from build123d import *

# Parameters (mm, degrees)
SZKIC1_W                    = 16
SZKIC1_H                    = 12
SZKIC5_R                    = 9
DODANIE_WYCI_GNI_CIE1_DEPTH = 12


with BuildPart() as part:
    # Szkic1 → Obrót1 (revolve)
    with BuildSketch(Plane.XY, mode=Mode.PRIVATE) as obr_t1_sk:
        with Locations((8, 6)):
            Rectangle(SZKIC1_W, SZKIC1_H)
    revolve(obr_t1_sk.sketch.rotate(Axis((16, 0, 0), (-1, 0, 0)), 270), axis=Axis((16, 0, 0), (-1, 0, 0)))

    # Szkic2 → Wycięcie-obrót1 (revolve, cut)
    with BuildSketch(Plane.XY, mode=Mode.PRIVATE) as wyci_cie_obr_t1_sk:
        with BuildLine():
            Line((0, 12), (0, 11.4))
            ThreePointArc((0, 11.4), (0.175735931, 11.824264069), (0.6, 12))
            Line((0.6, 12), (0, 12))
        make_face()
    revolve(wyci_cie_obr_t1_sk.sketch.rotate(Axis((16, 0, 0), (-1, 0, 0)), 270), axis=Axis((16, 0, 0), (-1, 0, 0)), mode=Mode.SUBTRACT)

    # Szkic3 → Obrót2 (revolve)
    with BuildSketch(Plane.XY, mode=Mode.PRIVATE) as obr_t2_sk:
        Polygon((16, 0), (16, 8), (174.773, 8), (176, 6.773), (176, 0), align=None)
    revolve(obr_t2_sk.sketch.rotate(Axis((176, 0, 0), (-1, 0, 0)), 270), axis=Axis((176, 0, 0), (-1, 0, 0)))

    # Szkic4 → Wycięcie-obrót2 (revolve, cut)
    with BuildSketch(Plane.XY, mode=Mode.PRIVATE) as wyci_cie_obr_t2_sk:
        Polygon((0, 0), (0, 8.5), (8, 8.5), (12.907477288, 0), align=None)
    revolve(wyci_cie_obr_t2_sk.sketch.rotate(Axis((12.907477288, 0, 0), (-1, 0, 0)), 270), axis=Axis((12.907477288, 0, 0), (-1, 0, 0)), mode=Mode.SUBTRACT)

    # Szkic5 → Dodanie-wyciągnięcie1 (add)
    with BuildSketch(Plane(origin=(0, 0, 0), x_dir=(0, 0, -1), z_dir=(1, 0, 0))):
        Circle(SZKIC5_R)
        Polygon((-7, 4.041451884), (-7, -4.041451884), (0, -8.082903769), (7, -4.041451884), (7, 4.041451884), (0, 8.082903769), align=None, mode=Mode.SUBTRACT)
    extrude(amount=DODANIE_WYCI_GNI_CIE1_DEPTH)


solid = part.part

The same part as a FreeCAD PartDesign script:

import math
import FreeCAD as App
import Part
import Sketcher
Q = App.Units.Quantity


def add_polygon(sketch, points):
    """Adds a closed chain of lines whose ends are joined by coincident constraints."""
    first, n = sketch.GeometryCount, len(points)
    for a, b in zip(points, points[1:] + points[:1]):
        sketch.addGeometry(Part.LineSegment(App.Vector(*a, 0), App.Vector(*b, 0)), False)
    for i in range(n):
        sketch.addConstraint(Sketcher.Constraint("Coincident", first + i, 2, first + (i + 1) % n, 1))

doc = App.newDocument("Part")
body = doc.addObject("PartDesign::Body", "Body")

# Sketch on XY plane
sketch1 = body.newObject("Sketcher::SketchObject", "Sketch")
sketch1.AttachmentSupport = (doc.getObject("XY_Plane"), [""])
sketch1.MapMode = "FlatFace"
add_polygon(sketch1, [(0, 12), (0, 0), (16, 0), (16, 12)])  # lines 0-3
sketch1.addConstraint(Sketcher.Constraint("Vertical", 0))
sketch1.addConstraint(Sketcher.Constraint("Horizontal", 1))
sketch1.addConstraint(Sketcher.Constraint("Vertical", 2))
sketch1.addConstraint(Sketcher.Constraint("Horizontal", 3))
sketch1.addConstraint(Sketcher.Constraint("Coincident", 0, 2, -1, 1))
sketch1.addConstraint(Sketcher.Constraint("DistanceX", 1, 1, 1, 2, Q("16 mm")))
sketch1.addConstraint(Sketcher.Constraint("DistanceY", 0, 2, 0, 1, Q("12 mm")))
revolution = body.newObject("PartDesign::Revolution", "Revolution")
revolution.Profile = sketch1
revolution.ReferenceAxis = (sketch1, ["H_Axis"])
revolution.Angle = 360

# Sketch on XY plane
sketch2 = body.newObject("Sketcher::SketchObject", "Sketch001")
sketch2.AttachmentSupport = (doc.getObject("XY_Plane"), [""])
sketch2.MapMode = "FlatFace"
sketch2.addGeometry(Part.LineSegment(App.Vector(0, 12, 0), App.Vector(0, 11.4, 0)), False)
sketch2.addGeometry(Part.ArcOfCircle(Part.Circle(App.Vector(0.6, 11.4, 0), App.Vector(0, 0, 1), 0.6), math.radians(90), math.radians(180)), False)
sketch2.addGeometry(Part.LineSegment(App.Vector(0.6, 12, 0), App.Vector(0, 12, 0)), False)
sketch2.addConstraint(Sketcher.Constraint("Tangent", 0, 2, 1, 2))
sketch2.addConstraint(Sketcher.Constraint("Tangent", 1, 1, 2, 1))
sketch2.addConstraint(Sketcher.Constraint("Coincident", 2, 2, 0, 1))
sketch2.addConstraint(Sketcher.Constraint("Vertical", 0))
sketch2.addConstraint(Sketcher.Constraint("Horizontal", 2))
sketch2.addConstraint(Sketcher.Constraint("PointOnObject", 0, 2, -2))
sketch2.addConstraint(Sketcher.Constraint("Radius", 1, Q("0.6 mm")))
sketch2.addConstraint(Sketcher.Constraint("DistanceY", -1, 1, 1, 1, Q("12 mm")))
groove = body.newObject("PartDesign::Groove", "Groove")
groove.Profile = sketch2
groove.ReferenceAxis = (sketch2, ["H_Axis"])
groove.Angle = 360

# Sketch on XY plane
sketch3 = body.newObject("Sketcher::SketchObject", "Sketch002")
sketch3.AttachmentSupport = (doc.getObject("XY_Plane"), [""])
sketch3.MapMode = "FlatFace"
add_polygon(sketch3, [(16, 8), (16, 0), (176, 0), (176, 6.773), (174.773, 8)])  # lines 0-4
sketch3.addConstraint(Sketcher.Constraint("Vertical", 0))
sketch3.addConstraint(Sketcher.Constraint("Horizontal", 1))
sketch3.addConstraint(Sketcher.Constraint("Vertical", 2))
sketch3.addConstraint(Sketcher.Constraint("Horizontal", 4))
sketch3.addConstraint(Sketcher.Constraint("PointOnObject", 0, 2, -1))
sketch3.addConstraint(Sketcher.Constraint("DistanceX", 1, 1, 1, 2, Q("160 mm")))
sketch3.addConstraint(Sketcher.Constraint("DistanceY", 0, 2, 0, 1, Q("8 mm")))
sketch3.addConstraint(Sketcher.Constraint("Angle", 3, Q("135 deg")))
sketch3.addConstraint(Sketcher.Constraint("DistanceX", -1, 1, 0, 2, Q("16 mm")))
sketch3.addConstraint(Sketcher.Constraint("DistanceX", 4, 2, 4, 1, Q("158.773 mm")))
revolution2 = body.newObject("PartDesign::Revolution", "Revolution001")
revolution2.Profile = sketch3
revolution2.ReferenceAxis = (sketch3, ["H_Axis"])
revolution2.Angle = 360

# Sketch on XY plane
sketch4 = body.newObject("Sketcher::SketchObject", "Sketch003")
sketch4.AttachmentSupport = (doc.getObject("XY_Plane"), [""])
sketch4.MapMode = "FlatFace"
add_polygon(sketch4, [(0, 8.5), (0, 0), (12.907477, 0), (8, 8.5)])  # lines 0-3
sketch4.addConstraint(Sketcher.Constraint("Vertical", 0))
sketch4.addConstraint(Sketcher.Constraint("Horizontal", 1))
sketch4.addConstraint(Sketcher.Constraint("Horizontal", 3))
sketch4.addConstraint(Sketcher.Constraint("Coincident", 0, 2, -1, 1))
sketch4.addConstraint(Sketcher.Constraint("DistanceX", 3, 2, 3, 1, Q("8 mm")))
sketch4.addConstraint(Sketcher.Constraint("Angle", 2, Q("120 deg")))
sketch4.addConstraint(Sketcher.Constraint("DistanceY", 0, 2, 0, 1, Q("8.5 mm")))
groove2 = body.newObject("PartDesign::Groove", "Groove001")
groove2.Profile = sketch4
groove2.ReferenceAxis = (sketch4, ["H_Axis"])
groove2.Angle = 360

# Sketch on YZ plane
sketch5 = body.newObject("Sketcher::SketchObject", "Sketch004")
sketch5.AttachmentSupport = (doc.getObject("YZ_Plane"), [""])
sketch5.MapMode = "FlatFace"
sketch5.addGeometry(Part.Circle(App.Vector(0, 0, 0), App.Vector(0, 0, 1), 9), False)  # 0
add_polygon(sketch5, [(-4.041452, 7), (4.041452, 7), (8.082904, 0), (4.041452, -7), (-4.041452, -7), (-8.082904, 0)])  # lines 1-6
sketch5.addConstraint(Sketcher.Constraint("Horizontal", 1))
sketch5.addConstraint(Sketcher.Constraint("Horizontal", 4))
sketch5.addConstraint(Sketcher.Constraint("Coincident", 0, 3, -1, 1))
sketch5.addConstraint(Sketcher.Constraint("Symmetric", 1, 2, 4, 2, -1, 1))
sketch5.addConstraint(Sketcher.Constraint("Symmetric", 2, 2, 5, 2, -1, 1))
sketch5.addConstraint(Sketcher.Constraint("PointOnObject", 2, 2, -1))
sketch5.addConstraint(Sketcher.Constraint("Parallel", 3, 6))
sketch5.addConstraint(Sketcher.Constraint("Vertical", 1, 2, 3, 2))
sketch5.addConstraint(Sketcher.Constraint("Diameter", 0, Q("18 mm")))
sketch5.addConstraint(Sketcher.Constraint("Angle", 2, Q("-60 deg")))
sketch5.addConstraint(Sketcher.Constraint("DistanceY", -1, 1, 1, 2, Q("7 mm")))
sketch5.addConstraint(Sketcher.Constraint("DistanceX", 1, 1, 1, 2, Q("8.082904 mm")))
pad1 = body.newObject("PartDesign::Pad", "Pad")
pad1.Profile = sketch5
pad1.Length = 12

doc.recompute()
